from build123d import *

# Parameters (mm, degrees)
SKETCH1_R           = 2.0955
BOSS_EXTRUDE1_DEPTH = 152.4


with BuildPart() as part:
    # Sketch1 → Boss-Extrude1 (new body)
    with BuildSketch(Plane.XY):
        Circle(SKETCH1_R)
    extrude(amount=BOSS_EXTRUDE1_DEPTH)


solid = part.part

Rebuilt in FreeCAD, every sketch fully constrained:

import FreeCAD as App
import Part
import Sketcher
from FreeCAD import Vector
Q = App.Units.Quantity

doc = App.newDocument("Part")
body = doc.addObject("PartDesign::Body", "Body")

# Sketch on XY plane
sketch1 = doc.addObject("Sketcher::SketchObject", "Sketch")
body.addObject(sketch1)
sketch1.AttachmentSupport = (doc.XY_Plane, [""])
sketch1.MapMode = "FlatFace"
sketch1.addGeometry(Part.Circle(Vector(0, 0, 0), Vector(0, 0, 1), 2.1), False)
sketch1.addConstraint(Sketcher.Constraint("Coincident", 0, 3, -1, 1))
sketch1.addConstraint(Sketcher.Constraint("Diameter", 0, Q("0.165 in")))
pad1 = doc.addObject("PartDesign::Pad", "Pad")
body.addObject(pad1)
pad1.Profile = sketch1
pad1.Length = Q("6 in")

doc.recompute()
